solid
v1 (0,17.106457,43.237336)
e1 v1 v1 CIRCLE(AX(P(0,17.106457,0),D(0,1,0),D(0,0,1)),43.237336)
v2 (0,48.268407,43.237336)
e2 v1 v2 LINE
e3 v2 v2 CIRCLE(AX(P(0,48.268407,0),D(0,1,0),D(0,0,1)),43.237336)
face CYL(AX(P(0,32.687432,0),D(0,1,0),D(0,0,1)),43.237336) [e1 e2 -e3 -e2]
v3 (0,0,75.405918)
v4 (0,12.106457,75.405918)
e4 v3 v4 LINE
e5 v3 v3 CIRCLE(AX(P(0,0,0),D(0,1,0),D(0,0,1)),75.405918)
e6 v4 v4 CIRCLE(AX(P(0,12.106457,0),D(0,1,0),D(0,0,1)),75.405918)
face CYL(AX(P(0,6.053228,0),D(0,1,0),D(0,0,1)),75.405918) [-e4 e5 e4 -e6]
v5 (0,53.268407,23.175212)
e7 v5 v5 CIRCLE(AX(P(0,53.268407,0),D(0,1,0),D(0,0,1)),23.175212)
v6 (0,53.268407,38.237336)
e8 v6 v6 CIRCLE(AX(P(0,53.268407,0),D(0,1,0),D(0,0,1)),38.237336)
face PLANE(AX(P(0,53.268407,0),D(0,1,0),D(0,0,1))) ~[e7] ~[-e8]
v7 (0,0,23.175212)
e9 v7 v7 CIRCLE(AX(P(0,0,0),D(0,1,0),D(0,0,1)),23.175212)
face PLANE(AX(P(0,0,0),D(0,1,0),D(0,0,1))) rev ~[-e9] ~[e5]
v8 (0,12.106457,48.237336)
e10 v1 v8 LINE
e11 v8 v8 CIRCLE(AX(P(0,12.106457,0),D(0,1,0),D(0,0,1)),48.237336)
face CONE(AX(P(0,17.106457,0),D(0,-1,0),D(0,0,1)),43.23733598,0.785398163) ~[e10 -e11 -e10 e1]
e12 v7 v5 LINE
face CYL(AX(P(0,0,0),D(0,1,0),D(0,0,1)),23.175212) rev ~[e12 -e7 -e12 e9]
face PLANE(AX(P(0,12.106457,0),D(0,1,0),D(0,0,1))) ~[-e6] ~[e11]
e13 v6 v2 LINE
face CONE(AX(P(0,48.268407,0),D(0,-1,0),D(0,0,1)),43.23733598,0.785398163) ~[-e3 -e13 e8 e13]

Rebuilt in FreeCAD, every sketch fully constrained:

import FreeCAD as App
import Part
import Sketcher
Q = App.Units.Quantity


def edges_at(feature, points):
    """Names of the edges that pass closest to the given points."""
    edges = feature.Shape.Edges
    near = lambda p: min(range(len(edges)), key=lambda i: edges[i].distToShape(Part.Vertex(*p))[0])
    return sorted({f"Edge{near(p) + 1}" for p in points})

doc = App.newDocument("Part")
body = doc.addObject("PartDesign::Body", "Body")

# Sketch on YZ plane
sketch1 = body.newObject("Sketcher::SketchObject", "Sketch")
sketch1.AttachmentSupport = (doc.getObject("YZ_Plane"), [""])
sketch1.MapMode = "FlatFace"
sketch1.addGeometry(Part.LineSegment(App.Vector(0, 75, 0), App.Vector(0, 23, 0)), False)
sketch1.addGeometry(Part.LineSegment(App.Vector(0, 23, 0), App.Vector(53, 23, 0)), False)
sketch1.addGeometry(Part.LineSegment(App.Vector(53, 23, 0), App.Vector(53, 43, 0)), False)
sketch1.addGeometry(Part.LineSegment(App.Vector(53, 43, 0), App.Vector(12, 43, 0)), False)
sketch1.addGeometry(Part.LineSegment(App.Vector(12, 43, 0), App.Vector(12, 75, 0)), False)
sketch1.addGeometry(Part.LineSegment(App.Vector(12, 75, 0), App.Vector(0, 75, 0)), False)
sketch1.addConstraint(Sketcher.Constraint("Coincident", 0, 2, 1, 1))
sketch1.addConstraint(Sketcher.Constraint("Coincident", 1, 2, 2, 1))
sketch1.addConstraint(Sketcher.Constraint("Coincident", 2, 2, 3, 1))
sketch1.addConstraint(Sketcher.Constraint("Coincident", 3, 2, 4, 1))
sketch1.addConstraint(Sketcher.Constraint("Coincident", 4, 2, 5, 1))
sketch1.addConstraint(Sketcher.Constraint("Coincident", 5, 2, 0, 1))
sketch1.addConstraint(Sketcher.Constraint("Vertical", 0))
sketch1.addConstraint(Sketcher.Constraint("Horizontal", 1))
sketch1.addConstraint(Sketcher.Constraint("Vertical", 2))
sketch1.addConstraint(Sketcher.Constraint("Horizontal", 3))
sketch1.addConstraint(Sketcher.Constraint("Vertical", 4))
sketch1.addConstraint(Sketcher.Constraint("Horizontal", 5))
sketch1.addConstraint(Sketcher.Constraint("PointOnObject", 0, 2, -2))
sketch1.addConstraint(Sketcher.Constraint("DistanceX", 3, 2, 3, 1, Q("41.16195 mm")))
sketch1.addConstraint(Sketcher.Constraint("DistanceX", 1, 1, 1, 2, Q("53.268407 mm")))
sketch1.addConstraint(Sketcher.Constraint("DistanceY", 0, 2, 0, 1, Q("52.230706 mm")))
sketch1.addConstraint(Sketcher.Constraint("DistanceY", 2, 1, 2, 2, Q("20.062124 mm")))
sketch1.addConstraint(Sketcher.Constraint("DistanceY", -1, 1, 0, 2, Q("23.175212 mm")))
revolution = body.newObject("PartDesign::Revolution", "Revolution")
revolution.Profile = sketch1
revolution.ReferenceAxis = (sketch1, ["H_Axis"])
revolution.Angle = 360
doc.recompute()

chamfer = body.newObject("PartDesign::Chamfer", "Chamfer")
chamfer.Base = (revolution, edges_at(revolution, [(0, 12.106, -43.237), (0, 53.268, -43.237)]))
chamfer.Size = 5

doc.recompute()
